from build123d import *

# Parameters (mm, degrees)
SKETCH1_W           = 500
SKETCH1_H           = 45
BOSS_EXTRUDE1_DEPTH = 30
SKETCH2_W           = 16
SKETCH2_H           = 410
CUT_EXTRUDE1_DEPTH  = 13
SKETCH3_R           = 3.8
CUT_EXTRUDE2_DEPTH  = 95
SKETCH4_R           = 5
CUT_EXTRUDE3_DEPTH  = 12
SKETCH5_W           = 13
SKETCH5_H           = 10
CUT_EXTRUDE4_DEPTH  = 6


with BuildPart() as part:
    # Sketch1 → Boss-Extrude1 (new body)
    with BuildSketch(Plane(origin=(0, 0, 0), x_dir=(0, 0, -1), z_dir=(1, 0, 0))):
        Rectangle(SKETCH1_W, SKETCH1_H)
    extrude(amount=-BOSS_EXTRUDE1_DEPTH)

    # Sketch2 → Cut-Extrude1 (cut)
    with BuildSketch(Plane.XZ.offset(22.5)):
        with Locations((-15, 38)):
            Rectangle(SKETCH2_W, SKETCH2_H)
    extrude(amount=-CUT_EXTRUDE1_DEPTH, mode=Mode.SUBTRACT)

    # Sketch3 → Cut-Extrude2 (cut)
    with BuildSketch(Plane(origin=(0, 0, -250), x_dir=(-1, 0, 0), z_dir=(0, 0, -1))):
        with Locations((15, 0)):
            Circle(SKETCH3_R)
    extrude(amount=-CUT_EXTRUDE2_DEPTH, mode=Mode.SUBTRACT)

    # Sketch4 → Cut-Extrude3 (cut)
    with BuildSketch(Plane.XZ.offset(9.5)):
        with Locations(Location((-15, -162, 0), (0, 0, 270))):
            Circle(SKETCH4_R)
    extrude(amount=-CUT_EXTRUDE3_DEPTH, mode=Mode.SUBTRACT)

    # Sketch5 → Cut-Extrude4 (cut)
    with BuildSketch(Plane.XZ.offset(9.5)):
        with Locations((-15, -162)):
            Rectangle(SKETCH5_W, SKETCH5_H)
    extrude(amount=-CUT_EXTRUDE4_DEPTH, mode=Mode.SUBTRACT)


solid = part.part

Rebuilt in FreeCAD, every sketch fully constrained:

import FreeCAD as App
import Part
import Sketcher
from FreeCAD import Vector
Q = App.Units.Quantity


def add_polygon(sketch, points):
    """Adds a closed chain of lines whose ends are joined by coincident constraints."""
    first, n = sketch.GeometryCount, len(points)
    for a, b in zip(points, points[1:] + points[:1]):
        sketch.addGeometry(Part.LineSegment(App.Vector(*a, 0), App.Vector(*b, 0)), False)
    for i in range(n):
        sketch.addConstraint(Sketcher.Constraint("Coincident", first + i, 2, first + (i + 1) % n, 1))

doc = App.newDocument("Part")
params = doc.addObject("Spreadsheet::Sheet", "Params")
for row, (alias, value) in enumerate([
    ("sketch1_width", "45 mm"),
    ("sketch1_height", "500 mm"),
    ("pad1_length", "30 mm"),
    ("sketch2_width", "16 mm"),
    ("sketch2_height", "410 mm"),
    ("pocket1_length", "13 mm"),
    ("sketch3_diameter", "7.6 mm"),
    ("pocket2_length", "95 mm"),
    ("sketch4_diameter", "10 mm"),
    ("pocket3_length", "12 mm"),
    ("sketch5_width", "13 mm"),
    ("sketch5_height", "10 mm"),
    ("pocket4_length", "6 mm"),
], start=1):
    params.set(f"A{row}", alias)
    params.set(f"B{row}", "=" + value)
    params.setAlias(f"B{row}", alias)

body = doc.addObject("PartDesign::Body", "Body")

# Sketch on YZ plane
sketch1 = doc.addObject("Sketcher::SketchObject", "Sketch")
body.addObject(sketch1)
sketch1.AttachmentSupport = (doc.YZ_Plane, [""])
sketch1.MapMode = "FlatFace"
add_polygon(sketch1, [(22, 250), (-22, 250), (-22, -250), (22, -250)])  # lines 0-3
sketch1.addConstraint(Sketcher.Constraint("Horizontal", 0))
sketch1.addConstraint(Sketcher.Constraint("Vertical", 1))
sketch1.addConstraint(Sketcher.Constraint("Horizontal", 2))
sketch1.addConstraint(Sketcher.Constraint("Vertical", 3))
sketch1.addConstraint(Sketcher.Constraint("Symmetric", 0, 2, 2, 2, -1, 1))
sketch1.addConstraint(Sketcher.Constraint("DistanceX", 0, 2, 0, 1, Q("45 mm")))
sketch1.addConstraint(Sketcher.Constraint("DistanceY", 1, 2, 1, 1, Q("500 mm")))
sketch1.setExpression("Constraints[9]", "Params.sketch1_width")
sketch1.setExpression("Constraints[10]", "Params.sketch1_height")
pad1 = doc.addObject("PartDesign::Pad", "Pad")
body.addObject(pad1)
pad1.Profile = sketch1
pad1.setExpression("Length", "Params.pad1_length")
pad1.Reversed = True

# Sketch on XZ plane
sketch2 = doc.addObject("Sketcher::SketchObject", "Sketch001")
body.addObject(sketch2)
sketch2.AttachmentSupport = (doc.XZ_Plane, [""])
sketch2.MapMode = "FlatFace"
sketch2.AttachmentOffset = App.Placement(Vector(0, 0, 22.5), App.Rotation())
add_polygon(sketch2, [(-23, 243), (-23, -167), (-7, -167), (-7, 243)])  # lines 0-3
sketch2.addConstraint(Sketcher.Constraint("Vertical", 0))
sketch2.addConstraint(Sketcher.Constraint("Horizontal", 1))
sketch2.addConstraint(Sketcher.Constraint("Vertical", 2))
sketch2.addConstraint(Sketcher.Constraint("Horizontal", 3))
sketch2.addConstraint(Sketcher.Constraint("DistanceX", 1, 1, 1, 2, Q("16 mm")))
sketch2.addConstraint(Sketcher.Constraint("DistanceY", 0, 2, 0, 1, Q("410 mm")))
sketch2.addConstraint(Sketcher.Constraint("DistanceX", 0, 2, -1, 1, Q("23 mm")))
sketch2.addConstraint(Sketcher.Constraint("DistanceY", 0, 2, -1, 1, Q("167 mm")))
sketch2.setExpression("Constraints[8]", "Params.sketch2_width")
sketch2.setExpression("Constraints[9]", "Params.sketch2_height")
pocket1 = doc.addObject("PartDesign::Pocket", "Pocket")
body.addObject(pocket1)
pocket1.Profile = sketch2
pocket1.setExpression("Length", "Params.pocket1_length")

# Sketch on XY plane
sketch3 = doc.addObject("Sketcher::SketchObject", "Sketch002")
body.addObject(sketch3)
sketch3.AttachmentSupport = (doc.XY_Plane, [""])
sketch3.MapMode = "FlatFace"
sketch3.AttachmentOffset = App.Placement(Vector(0, 0, -250), App.Rotation())
sketch3.addGeometry(Part.Circle(Vector(-15, 0, 0), Vector(0, 0, 1), 3.8), False)
sketch3.addConstraint(Sketcher.Constraint("PointOnObject", 0, 3, -1))
sketch3.addConstraint(Sketcher.Constraint("Diameter", 0, Q("7.6 mm")))
sketch3.addConstraint(Sketcher.Constraint("DistanceX", 0, 3, -1, 1, Q("15 mm")))
sketch3.setExpression("Constraints[1]", "Params.sketch3_diameter")
pocket2 = doc.addObject("PartDesign::Pocket", "Pocket001")
body.addObject(pocket2)
pocket2.Profile = sketch3
pocket2.setExpression("Length", "Params.pocket2_length")
pocket2.Reversed = True

# Sketch on XZ plane
sketch4 = doc.addObject("Sketcher::SketchObject", "Sketch003")
body.addObject(sketch4)
sketch4.AttachmentSupport = (doc.XZ_Plane, [""])
sketch4.MapMode = "FlatFace"
sketch4.AttachmentOffset = App.Placement(Vector(0, 0, 9.5), App.Rotation())
sketch4.addGeometry(Part.Circle(Vector(-15, -162, 0), Vector(0, 0, 1), 5), False)
sketch4.addConstraint(Sketcher.Constraint("Diameter", 0, Q("10 mm")))
sketch4.addConstraint(Sketcher.Constraint("DistanceX", 0, 3, -1, 1, Q("15 mm")))
sketch4.addConstraint(Sketcher.Constraint("DistanceY", 0, 3, -1, 1, Q("162 mm")))
sketch4.setExpression("Constraints[0]", "Params.sketch4_diameter")
pocket3 = doc.addObject("PartDesign::Pocket", "Pocket002")
body.addObject(pocket3)
pocket3.Profile = sketch4
pocket3.setExpression("Length", "Params.pocket3_length")

# Sketch on XZ plane
sketch5 = doc.addObject("Sketcher::SketchObject", "Sketch004")
body.addObject(sketch5)
sketch5.AttachmentSupport = (doc.XZ_Plane, [""])
sketch5.MapMode = "FlatFace"
sketch5.AttachmentOffset = App.Placement(Vector(0, 0, 9.5), App.Rotation())
add_polygon(sketch5, [(-22, -157), (-22, -167), (-8, -167), (-8, -157)])  # lines 0-3
sketch5.addConstraint(Sketcher.Constraint("Vertical", 0))
sketch5.addConstraint(Sketcher.Constraint("Horizontal", 1))
sketch5.addConstraint(Sketcher.Constraint("Vertical", 2))
sketch5.addConstraint(Sketcher.Constraint("Horizontal", 3))
sketch5.addConstraint(Sketcher.Constraint("DistanceX", 1, 1, 1, 2, Q("13 mm")))
sketch5.addConstraint(Sketcher.Constraint("DistanceY", 0, 2, 0, 1, Q("10 mm")))
sketch5.addConstraint(Sketcher.Constraint("DistanceY", 0, 2, -1, 1, Q("167 mm")))
sketch5.addConstraint(Sketcher.Constraint("DistanceX", 0, 2, -1, 1, Q("21.5 mm")))
sketch5.setExpression("Constraints[8]", "Params.sketch5_width")
sketch5.setExpression("Constraints[9]", "Params.sketch5_height")
pocket4 = doc.addObject("PartDesign::Pocket", "Pocket003")
body.addObject(pocket4)
pocket4.Profile = sketch5
pocket4.setExpression("Length", "Params.pocket4_length")

doc.recompute()
